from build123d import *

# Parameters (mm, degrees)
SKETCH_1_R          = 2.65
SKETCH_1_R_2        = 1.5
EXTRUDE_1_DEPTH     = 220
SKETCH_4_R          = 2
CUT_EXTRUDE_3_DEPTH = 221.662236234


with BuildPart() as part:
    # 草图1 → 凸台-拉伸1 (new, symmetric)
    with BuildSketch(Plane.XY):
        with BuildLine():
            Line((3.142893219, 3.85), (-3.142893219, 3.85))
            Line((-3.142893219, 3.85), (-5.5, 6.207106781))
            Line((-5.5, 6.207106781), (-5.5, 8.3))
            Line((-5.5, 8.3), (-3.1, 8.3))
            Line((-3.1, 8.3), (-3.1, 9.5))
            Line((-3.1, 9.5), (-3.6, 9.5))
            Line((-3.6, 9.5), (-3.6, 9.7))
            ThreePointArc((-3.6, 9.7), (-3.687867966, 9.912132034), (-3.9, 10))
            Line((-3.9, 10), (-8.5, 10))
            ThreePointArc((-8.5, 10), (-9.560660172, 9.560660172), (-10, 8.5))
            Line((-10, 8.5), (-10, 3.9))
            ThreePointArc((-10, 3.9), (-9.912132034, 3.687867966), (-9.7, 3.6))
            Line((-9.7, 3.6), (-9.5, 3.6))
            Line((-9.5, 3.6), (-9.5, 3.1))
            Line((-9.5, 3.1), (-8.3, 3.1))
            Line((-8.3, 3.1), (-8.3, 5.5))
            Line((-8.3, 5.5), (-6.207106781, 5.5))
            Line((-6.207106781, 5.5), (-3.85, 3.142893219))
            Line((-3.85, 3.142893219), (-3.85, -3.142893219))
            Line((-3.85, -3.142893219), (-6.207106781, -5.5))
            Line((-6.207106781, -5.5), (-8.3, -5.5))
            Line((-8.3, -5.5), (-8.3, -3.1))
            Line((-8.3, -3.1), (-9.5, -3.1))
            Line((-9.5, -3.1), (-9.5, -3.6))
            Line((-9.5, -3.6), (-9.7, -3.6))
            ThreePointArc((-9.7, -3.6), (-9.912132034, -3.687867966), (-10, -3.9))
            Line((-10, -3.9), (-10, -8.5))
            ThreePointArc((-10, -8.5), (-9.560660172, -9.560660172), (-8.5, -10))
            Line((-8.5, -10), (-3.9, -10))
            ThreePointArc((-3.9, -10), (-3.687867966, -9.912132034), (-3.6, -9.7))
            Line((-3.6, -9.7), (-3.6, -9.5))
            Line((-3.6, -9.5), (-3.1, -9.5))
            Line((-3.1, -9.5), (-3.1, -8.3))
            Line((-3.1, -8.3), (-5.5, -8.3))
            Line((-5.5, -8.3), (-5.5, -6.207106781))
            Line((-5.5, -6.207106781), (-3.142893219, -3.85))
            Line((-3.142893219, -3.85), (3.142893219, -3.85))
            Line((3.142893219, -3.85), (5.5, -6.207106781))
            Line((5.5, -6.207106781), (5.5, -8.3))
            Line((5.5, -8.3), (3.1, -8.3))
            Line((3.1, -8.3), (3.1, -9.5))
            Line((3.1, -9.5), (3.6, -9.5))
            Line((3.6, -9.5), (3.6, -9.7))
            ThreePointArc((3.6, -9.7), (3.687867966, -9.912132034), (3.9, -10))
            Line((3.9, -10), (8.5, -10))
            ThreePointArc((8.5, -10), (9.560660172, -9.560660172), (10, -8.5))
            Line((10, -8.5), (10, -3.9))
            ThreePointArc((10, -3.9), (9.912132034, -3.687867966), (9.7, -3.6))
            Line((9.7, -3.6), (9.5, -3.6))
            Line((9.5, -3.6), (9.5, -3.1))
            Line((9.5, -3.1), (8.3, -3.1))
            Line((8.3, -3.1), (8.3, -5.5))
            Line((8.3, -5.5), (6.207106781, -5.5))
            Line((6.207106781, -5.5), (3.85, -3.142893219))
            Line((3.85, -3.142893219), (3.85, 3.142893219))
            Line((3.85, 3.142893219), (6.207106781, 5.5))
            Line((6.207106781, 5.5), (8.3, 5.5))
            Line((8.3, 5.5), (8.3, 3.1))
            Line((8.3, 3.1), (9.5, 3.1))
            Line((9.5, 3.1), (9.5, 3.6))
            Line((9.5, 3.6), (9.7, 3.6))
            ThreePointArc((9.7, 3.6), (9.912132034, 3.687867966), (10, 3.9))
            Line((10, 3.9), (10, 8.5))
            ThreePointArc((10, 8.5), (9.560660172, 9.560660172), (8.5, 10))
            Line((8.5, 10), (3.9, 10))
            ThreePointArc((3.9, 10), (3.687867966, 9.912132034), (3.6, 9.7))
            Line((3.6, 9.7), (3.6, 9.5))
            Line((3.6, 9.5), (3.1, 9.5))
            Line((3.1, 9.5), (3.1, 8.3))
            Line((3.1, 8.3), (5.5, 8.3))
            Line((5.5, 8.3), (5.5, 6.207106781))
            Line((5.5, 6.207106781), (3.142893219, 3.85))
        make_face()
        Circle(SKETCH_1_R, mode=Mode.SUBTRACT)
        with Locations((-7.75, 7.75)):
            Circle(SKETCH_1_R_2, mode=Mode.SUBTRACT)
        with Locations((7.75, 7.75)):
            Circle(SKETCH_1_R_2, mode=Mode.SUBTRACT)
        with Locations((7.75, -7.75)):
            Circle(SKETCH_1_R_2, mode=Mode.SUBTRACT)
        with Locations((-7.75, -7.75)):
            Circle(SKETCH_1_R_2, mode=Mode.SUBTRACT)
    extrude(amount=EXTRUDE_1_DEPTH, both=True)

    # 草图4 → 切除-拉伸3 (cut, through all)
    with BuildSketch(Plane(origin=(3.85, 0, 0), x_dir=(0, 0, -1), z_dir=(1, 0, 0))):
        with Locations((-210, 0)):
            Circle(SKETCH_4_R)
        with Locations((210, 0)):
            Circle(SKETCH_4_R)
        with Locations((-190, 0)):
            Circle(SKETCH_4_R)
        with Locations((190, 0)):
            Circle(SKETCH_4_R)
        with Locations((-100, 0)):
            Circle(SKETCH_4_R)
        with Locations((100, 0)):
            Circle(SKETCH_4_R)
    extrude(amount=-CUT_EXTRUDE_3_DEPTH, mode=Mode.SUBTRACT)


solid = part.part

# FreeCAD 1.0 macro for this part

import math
import FreeCAD as App
import Part
import Sketcher

doc = App.newDocument("Part")
params = doc.addObject("Spreadsheet::Sheet", "Params")
for row, (alias, value) in enumerate([
    ("sketch1_diameter", "3 mm"),
    ("sketch1_diameter2", "5.3 mm"),
    ("sketch1_radius", "0.3 mm"),
    ("sketch1_width", "2.4 mm"),
    ("sketch1_width2", "0.5 mm"),
    ("pad1_length", "440 mm"),
    ("sketch2_diameter", "4 mm"),
], start=1):
    params.set(f"A{row}", alias)
    params.set(f"B{row}", "=" + value)
    params.setAlias(f"B{row}", alias)

body = doc.addObject("PartDesign::Body", "Body")

# Sketch on XY plane
sketch1 = body.newObject("Sketcher::SketchObject", "Sketch")
sketch1.AttachmentSupport = (doc.getObject("XY_Plane"), [""])
sketch1.MapMode = "FlatFace"
sketch1.addGeometry(Part.LineSegment(App.Vector(3.14, 3.85, 0), App.Vector(-3.14, 3.85, 0)), False)
sketch1.addGeometry(Part.LineSegment(App.Vector(-3.14, 3.85, 0), App.Vector(-5.5, 6.21, 0)), False)
sketch1.addGeometry(Part.LineSegment(App.Vector(-5.5, 6.21, 0), App.Vector(-5.5, 8.3, 0)), False)
sketch1.addGeometry(Part.LineSegment(App.Vector(-5.5, 8.3, 0), App.Vector(-3.1, 8.3, 0)), False)
sketch1.addGeometry(Part.LineSegment(App.Vector(-3.1, 8.3, 0), App.Vector(-3.1, 9.5, 0)), False)
sketch1.addGeometry(Part.LineSegment(App.Vector(-3.1, 9.5, 0), App.Vector(-3.6, 9.5, 0)), False)
sketch1.addGeometry(Part.LineSegment(App.Vector(-3.6, 9.5, 0), App.Vector(-3.6, 9.7, 0)), False)
sketch1.addGeometry(Part.ArcOfCircle(Part.Circle(App.Vector(-3.9, 9.7, 0), App.Vector(0, 0, 1), 0.3), math.radians(0), math.radians(90)), False)
sketch1.addGeometry(Part.LineSegment(App.Vector(-3.9, 10, 0), App.Vector(-8.5, 10, 0)), False)
sketch1.addGeometry(Part.ArcOfCircle(Part.Circle(App.Vector(-8.5, 8.5, 0), App.Vector(0, 0, 1), 1.5), math.radians(90), math.radians(180)), False)
sketch1.addGeometry(Part.LineSegment(App.Vector(-10, 8.5, 0), App.Vector(-10, 3.9, 0)), False)
sketch1.addGeometry(Part.ArcOfCircle(Part.Circle(App.Vector(-9.7, 3.9, 0), App.Vector(0, 0, 1), 0.3), math.radians(-180), math.radians(-90)), False)
sketch1.addGeometry(Part.LineSegment(App.Vector(-9.7, 3.6, 0), App.Vector(-9.5, 3.6, 0)), False)
sketch1.addGeometry(Part.LineSegment(App.Vector(-9.5, 3.6, 0), App.Vector(-9.5, 3.1, 0)), False)
sketch1.addGeometry(Part.LineSegment(App.Vector(-9.5, 3.1, 0), App.Vector(-8.3, 3.1, 0)), False)
sketch1.addGeometry(Part.LineSegment(App.Vector(-8.3, 3.1, 0), App.Vector(-8.3, 5.5, 0)), False)
sketch1.addGeometry(Part.LineSegment(App.Vector(-8.3, 5.5, 0), App.Vector(-6.21, 5.5, 0)), False)
sketch1.addGeometry(Part.LineSegment(App.Vector(-6.21, 5.5, 0), App.Vector(-3.85, 3.14, 0)), False)
sketch1.addGeometry(Part.LineSegment(App.Vector(-3.85, 3.14, 0), App.Vector(-3.85, -3.14, 0)), False)
sketch1.addGeometry(Part.LineSegment(App.Vector(-3.85, -3.14, 0), App.Vector(-6.21, -5.5, 0)), False)
sketch1.addGeometry(Part.LineSegment(App.Vector(-6.21, -5.5, 0), App.Vector(-8.3, -5.5, 0)), False)
sketch1.addGeometry(Part.LineSegment(App.Vector(-8.3, -5.5, 0), App.Vector(-8.3, -3.1, 0)), False)
sketch1.addGeometry(Part.LineSegment(App.Vector(-8.3, -3.1, 0), App.Vector(-9.5, -3.1, 0)), False)
sketch1.addGeometry(Part.LineSegment(App.Vector(-9.5, -3.1, 0), App.Vector(-9.5, -3.6, 0)), False)
sketch1.addGeometry(Part.LineSegment(App.Vector(-9.5, -3.6, 0), App.Vector(-9.7, -3.6, 0)), False)
sketch1.addGeometry(Part.ArcOfCircle(Part.Circle(App.Vector(-9.7, -3.9, 0), App.Vector(0, 0, 1), 0.3), math.radians(90), math.radians(180)), False)
sketch1.addGeometry(Part.LineSegment(App.Vector(-10, -3.9, 0), App.Vector(-10, -8.5, 0)), False)
sketch1.addGeometry(Part.ArcOfCircle(Part.Circle(App.Vector(-8.5, -8.5, 0), App.Vector(0, 0, 1), 1.5), math.radians(180), math.radians(270)), False)
sketch1.addGeometry(Part.LineSegment(App.Vector(-8.5, -10, 0), App.Vector(-3.9, -10, 0)), False)
sketch1.addGeometry(Part.ArcOfCircle(Part.Circle(App.Vector(-3.9, -9.7, 0), App.Vector(0, 0, 1), 0.3), math.radians(-90), math.radians(0)), False)
sketch1.addGeometry(Part.LineSegment(App.Vector(-3.6, -9.7, 0), App.Vector(-3.6, -9.5, 0)), False)
sketch1.addGeometry(Part.LineSegment(App.Vector(-3.6, -9.5, 0), App.Vector(-3.1, -9.5, 0)), False)
sketch1.addGeometry(Part.LineSegment(App.Vector(-3.1, -9.5, 0), App.Vector(-3.1, -8.3, 0)), False)
sketch1.addGeometry(Part.LineSegment(App.Vector(-3.1, -8.3, 0), App.Vector(-5.5, -8.3, 0)), False)
sketch1.addGeometry(Part.LineSegment(App.Vector(-5.5, -8.3, 0), App.Vector(-5.5, -6.21, 0)), False)
sketch1.addGeometry(Part.LineSegment(App.Vector(-5.5, -6.21, 0), App.Vector(-3.14, -3.85, 0)), False)
sketch1.addGeometry(Part.LineSegment(App.Vector(-3.14, -3.85, 0), App.Vector(3.14, -3.85, 0)), False)
sketch1.addGeometry(Part.LineSegment(App.Vector(3.14, -3.85, 0), App.Vector(5.5, -6.21, 0)), False)
sketch1.addGeometry(Part.LineSegment(App.Vector(5.5, -6.21, 0), App.Vector(5.5, -8.3, 0)), False)
sketch1.addGeometry(Part.LineSegment(App.Vector(5.5, -8.3, 0), App.Vector(3.1, -8.3, 0)), False)
sketch1.addGeometry(Part.LineSegment(App.Vector(3.1, -8.3, 0), App.Vector(3.1, -9.5, 0)), False)
sketch1.addGeometry(Part.LineSegment(App.Vector(3.1, -9.5, 0), App.Vector(3.6, -9.5, 0)), False)
sketch1.addGeometry(Part.LineSegment(App.Vector(3.6, -9.5, 0), App.Vector(3.6, -9.7, 0)), False)
sketch1.addGeometry(Part.ArcOfCircle(Part.Circle(App.Vector(3.9, -9.7, 0), App.Vector(0, 0, 1), 0.3), math.radians(-180), math.radians(-90)), False)
sketch1.addGeometry(Part.LineSegment(App.Vector(3.9, -10, 0), App.Vector(8.5, -10, 0)), False)
sketch1.addGeometry(Part.ArcOfCircle(Part.Circle(App.Vector(8.5, -8.5, 0), App.Vector(0, 0, 1), 1.5), math.radians(-90), math.radians(0)), False)
sketch1.addGeometry(Part.LineSegment(App.Vector(10, -8.5, 0), App.Vector(10, -3.9, 0)), False)
sketch1.addGeometry(Part.ArcOfCircle(Part.Circle(App.Vector(9.7, -3.9, 0), App.Vector(0, 0, 1), 0.3), math.radians(0), math.radians(90)), False)
sketch1.addGeometry(Part.LineSegment(App.Vector(9.7, -3.6, 0), App.Vector(9.5, -3.6, 0)), False)
sketch1.addGeometry(Part.LineSegment(App.Vector(9.5, -3.6, 0), App.Vector(9.5, -3.1, 0)), False)
sketch1.addGeometry(Part.LineSegment(App.Vector(9.5, -3.1, 0), App.Vector(8.3, -3.1, 0)), False)
sketch1.addGeometry(Part.LineSegment(App.Vector(8.3, -3.1, 0), App.Vector(8.3, -5.5, 0)), False)
sketch1.addGeometry(Part.LineSegment(App.Vector(8.3, -5.5, 0), App.Vector(6.21, -5.5, 0)), False)
sketch1.addGeometry(Part.LineSegment(App.Vector(6.21, -5.5, 0), App.Vector(3.85, -3.14, 0)), False)
sketch1.addGeometry(Part.LineSegment(App.Vector(3.85, -3.14, 0), App.Vector(3.85, 3.14, 0)), False)
sketch1.addGeometry(Part.LineSegment(App.Vector(3.85, 3.14, 0), App.Vector(6.21, 5.5, 0)), False)
sketch1.addGeometry(Part.LineSegment(App.Vector(6.21, 5.5, 0), App.Vector(8.3, 5.5, 0)), False)
sketch1.addGeometry(Part.LineSegment(App.Vector(8.3, 5.5, 0), App.Vector(8.3, 3.1, 0)), False)
sketch1.addGeometry(Part.LineSegment(App.Vector(8.3, 3.1, 0), App.Vector(9.5, 3.1, 0)), False)
sketch1.addGeometry(Part.LineSegment(App.Vector(9.5, 3.1, 0), App.Vector(9.5, 3.6, 0)), False)
sketch1.addGeometry(Part.LineSegment(App.Vector(9.5, 3.6, 0), App.Vector(9.7, 3.6, 0)), False)
sketch1.addGeometry(Part.ArcOfCircle(Part.Circle(App.Vector(9.7, 3.9, 0), App.Vector(0, 0, 1), 0.3), math.radians(-90), math.radians(0)), False)
sketch1.addGeometry(Part.LineSegment(App.Vector(10, 3.9, 0), App.Vector(10, 8.5, 0)), False)
sketch1.addGeometry(Part.ArcOfCircle(Part.Circle(App.Vector(8.5, 8.5, 0), App.Vector(0, 0, 1), 1.5), math.radians(0), math.radians(90)), False)
sketch1.addGeometry(Part.LineSegment(App.Vector(8.5, 10, 0), App.Vector(3.9, 10, 0)), False)
sketch1.addGeometry(Part.ArcOfCircle(Part.Circle(App.Vector(3.9, 9.7, 0), App.Vector(0, 0, 1), 0.3), math.radians(90), math.radians(180)), False)
sketch1.addGeometry(Part.LineSegment(App.Vector(3.6, 9.7, 0), App.Vector(3.6, 9.5, 0)), False)
sketch1.addGeometry(Part.LineSegment(App.Vector(3.6, 9.5, 0), App.Vector(3.1, 9.5, 0)), False)
sketch1.addGeometry(Part.LineSegment(App.Vector(3.1, 9.5, 0), App.Vector(3.1, 8.3, 0)), False)
sketch1.addGeometry(Part.LineSegment(App.Vector(3.1, 8.3, 0), App.Vector(5.5, 8.3, 0)), False)
sketch1.addGeometry(Part.LineSegment(App.Vector(5.5, 8.3, 0), App.Vector(5.5, 6.21, 0)), False)
sketch1.addGeometry(Part.LineSegment(App.Vector(5.5, 6.21, 0), App.Vector(3.14, 3.85, 0)), False)
sketch1.addGeometry(Part.Circle(App.Vector(-7.75, -7.75, 0), App.Vector(0, 0, 1), 1.5), False)
sketch1.addGeometry(Part.Circle(App.Vector(7.75, -7.75, 0), App.Vector(0, 0, 1), 1.5), False)
sketch1.addGeometry(Part.Circle(App.Vector(-7.75, 7.75, 0), App.Vector(0, 0, 1), 1.5), False)
sketch1.addGeometry(Part.Circle(App.Vector(0, 0, 0), App.Vector(0, 0, 1), 2.65), False)
sketch1.addGeometry(Part.Circle(App.Vector(7.75, 7.75, 0), App.Vector(0, 0, 1), 1.5), False)
sketch1.addConstraint(Sketcher.Constraint("Coincident", 0, 2, 1, 1))
sketch1.addConstraint(Sketcher.Constraint("Coincident", 1, 2, 2, 1))
sketch1.addConstraint(Sketcher.Constraint("Coincident", 2, 2, 3, 1))
sketch1.addConstraint(Sketcher.Constraint("Coincident", 3, 2, 4, 1))
sketch1.addConstraint(Sketcher.Constraint("Coincident", 4, 2, 5, 1))
sketch1.addConstraint(Sketcher.Constraint("Coincident", 5, 2, 6, 1))
sketch1.addConstraint(Sketcher.Constraint("Tangent", 6, 2, 7, 1))
sketch1.addConstraint(Sketcher.Constraint("Tangent", 7, 2, 8, 1))
sketch1.addConstraint(Sketcher.Constraint("Tangent", 8, 2, 9, 1))
sketch1.addConstraint(Sketcher.Constraint("Tangent", 9, 2, 10, 1))
sketch1.addConstraint(Sketcher.Constraint("Tangent", 10, 2, 11, 1))
sketch1.addConstraint(Sketcher.Constraint("Tangent", 11, 2, 12, 1))
sketch1.addConstraint(Sketcher.Constraint("Coincident", 12, 2, 13, 1))
sketch1.addConstraint(Sketcher.Constraint("Coincident", 13, 2, 14, 1))
sketch1.addConstraint(Sketcher.Constraint("Coincident", 14, 2, 15, 1))
sketch1.addConstraint(Sketcher.Constraint("Coincident", 15, 2, 16, 1))
sketch1.addConstraint(Sketcher.Constraint("Coincident", 16, 2, 17, 1))
sketch1.addConstraint(Sketcher.Constraint("Coincident", 17, 2, 18, 1))
sketch1.addConstraint(Sketcher.Constraint("Coincident", 18, 2, 19, 1))
sketch1.addConstraint(Sketcher.Constraint("Coincident", 19, 2, 20, 1))
sketch1.addConstraint(Sketcher.Constraint("Coincident", 20, 2, 21, 1))
sketch1.addConstraint(Sketcher.Constraint("Coincident", 21, 2, 22, 1))
sketch1.addConstraint(Sketcher.Constraint("Coincident", 22, 2, 23, 1))
sketch1.addConstraint(Sketcher.Constraint("Coincident", 23, 2, 24, 1))
sketch1.addConstraint(Sketcher.Constraint("Tangent", 24, 2, 25, 1))
sketch1.addConstraint(Sketcher.Constraint("Tangent", 25, 2, 26, 1))
sketch1.addConstraint(Sketcher.Constraint("Tangent", 26, 2, 27, 1))
sketch1.addConstraint(Sketcher.Constraint("Tangent", 27, 2, 28, 1))
sketch1.addConstraint(Sketcher.Constraint("Tangent", 28, 2, 29, 1))
sketch1.addConstraint(Sketcher.Constraint("Tangent", 29, 2, 30, 1))
sketch1.addConstraint(Sketcher.Constraint("Coincident", 30, 2, 31, 1))
sketch1.addConstraint(Sketcher.Constraint("Coincident", 31, 2, 32, 1))
sketch1.addConstraint(Sketcher.Constraint("Coincident", 32, 2, 33, 1))
sketch1.addConstraint(Sketcher.Constraint("Coincident", 33, 2, 34, 1))
sketch1.addConstraint(Sketcher.Constraint("Coincident", 34, 2, 35, 1))
sketch1.addConstraint(Sketcher.Constraint("Coincident", 35, 2, 36, 1))
sketch1.addConstraint(Sketcher.Constraint("Coincident", 36, 2, 37, 1))
sketch1.addConstraint(Sketcher.Constraint("Coincident", 37, 2, 38, 1))
sketch1.addConstraint(Sketcher.Constraint("Coincident", 38, 2, 39, 1))
sketch1.addConstraint(Sketcher.Constraint("Coincident", 39, 2, 40, 1))
sketch1.addConstraint(Sketcher.Constraint("Coincident", 40, 2, 41, 1))
sketch1.addConstraint(Sketcher.Constraint("Coincident", 41, 2, 42, 1))
sketch1.addConstraint(Sketcher.Constraint("Tangent", 42, 2, 43, 1))
sketch1.addConstraint(Sketcher.Constraint("Tangent", 43, 2, 44, 1))
sketch1.addConstraint(Sketcher.Constraint("Tangent", 44, 2, 45, 1))
sketch1.addConstraint(Sketcher.Constraint("Tangent", 45, 2, 46, 1))
sketch1.addConstraint(Sketcher.Constraint("Tangent", 46, 2, 47, 1))
sketch1.addConstraint(Sketcher.Constraint("Tangent", 47, 2, 48, 1))
sketch1.addConstraint(Sketcher.Constraint("Coincident", 48, 2, 49, 1))
sketch1.addConstraint(Sketcher.Constraint("Coincident", 49, 2, 50, 1))
sketch1.addConstraint(Sketcher.Constraint("Coincident", 50, 2, 51, 1))
sketch1.addConstraint(Sketcher.Constraint("Coincident", 51, 2, 52, 1))
sketch1.addConstraint(Sketcher.Constraint("Coincident", 52, 2, 53, 1))
sketch1.addConstraint(Sketcher.Constraint("Coincident", 53, 2, 54, 1))
sketch1.addConstraint(Sketcher.Constraint("Coincident", 54, 2, 55, 1))
sketch1.addConstraint(Sketcher.Constraint("Coincident", 55, 2, 56, 1))
sketch1.addConstraint(Sketcher.Constraint("Coincident", 56, 2, 57, 1))
sketch1.addConstraint(Sketcher.Constraint("Coincident", 57, 2, 58, 1))
sketch1.addConstraint(Sketcher.Constraint("Coincident", 58, 2, 59, 1))
sketch1.addConstraint(Sketcher.Constraint("Coincident", 59, 2, 60, 1))
sketch1.addConstraint(Sketcher.Constraint("Tangent", 60, 2, 61, 1))
sketch1.addConstraint(Sketcher.Constraint("Tangent", 61, 2, 62, 1))
sketch1.addConstraint(Sketcher.Constraint("Tangent", 62, 2, 63, 1))
sketch1.addConstraint(Sketcher.Constraint("Tangent", 63, 2, 64, 1))
sketch1.addConstraint(Sketcher.Constraint("Tangent", 64, 2, 65, 1))
sketch1.addConstraint(Sketcher.Constraint("Tangent", 65, 2, 66, 1))
sketch1.addConstraint(Sketcher.Constraint("Coincident", 66, 2, 67, 1))
sketch1.addConstraint(Sketcher.Constraint("Coincident", 67, 2, 68, 1))
sketch1.addConstraint(Sketcher.Constraint("Coincident", 68, 2, 69, 1))
sketch1.addConstraint(Sketcher.Constraint("Coincident", 69, 2, 70, 1))
sketch1.addConstraint(Sketcher.Constraint("Coincident", 70, 2, 71, 1))
sketch1.addConstraint(Sketcher.Constraint("Coincident", 71, 2, 0, 1))
sketch1.addConstraint(Sketcher.Constraint("Horizontal", 0))
sketch1.addConstraint(Sketcher.Constraint("Vertical", 2))
sketch1.addConstraint(Sketcher.Constraint("Horizontal", 3))
sketch1.addConstraint(Sketcher.Constraint("Vertical", 4))
sketch1.addConstraint(Sketcher.Constraint("Horizontal", 5))
sketch1.addConstraint(Sketcher.Constraint("Vertical", 6))
sketch1.addConstraint(Sketcher.Constraint("Horizontal", 8))
sketch1.addConstraint(Sketcher.Constraint("Vertical", 10))
sketch1.addConstraint(Sketcher.Constraint("Horizontal", 12))
sketch1.addConstraint(Sketcher.Constraint("Vertical", 13))
sketch1.addConstraint(Sketcher.Constraint("Horizontal", 14))
sketch1.addConstraint(Sketcher.Constraint("Vertical", 15))
sketch1.addConstraint(Sketcher.Constraint("Horizontal", 16))
sketch1.addConstraint(Sketcher.Constraint("Vertical", 18))
sketch1.addConstraint(Sketcher.Constraint("Horizontal", 20))
sketch1.addConstraint(Sketcher.Constraint("Vertical", 21))
sketch1.addConstraint(Sketcher.Constraint("Horizontal", 22))
sketch1.addConstraint(Sketcher.Constraint("Vertical", 23))
sketch1.addConstraint(Sketcher.Constraint("Horizontal", 24))
sketch1.addConstraint(Sketcher.Constraint("Vertical", 26))
sketch1.addConstraint(Sketcher.Constraint("Horizontal", 28))
sketch1.addConstraint(Sketcher.Constraint("Vertical", 30))
sketch1.addConstraint(Sketcher.Constraint("Horizontal", 31))
sketch1.addConstraint(Sketcher.Constraint("Vertical", 32))
sketch1.addConstraint(Sketcher.Constraint("Horizontal", 33))
sketch1.addConstraint(Sketcher.Constraint("Vertical", 34))
sketch1.addConstraint(Sketcher.Constraint("Horizontal", 36))
sketch1.addConstraint(Sketcher.Constraint("Vertical", 38))
sketch1.addConstraint(Sketcher.Constraint("Horizontal", 39))
sketch1.addConstraint(Sketcher.Constraint("Vertical", 40))
sketch1.addConstraint(Sketcher.Constraint("Horizontal", 41))
sketch1.addConstraint(Sketcher.Constraint("Vertical", 42))
sketch1.addConstraint(Sketcher.Constraint("Horizontal", 44))
sketch1.addConstraint(Sketcher.Constraint("Vertical", 46))
sketch1.addConstraint(Sketcher.Constraint("Horizontal", 48))
sketch1.addConstraint(Sketcher.Constraint("Vertical", 49))
sketch1.addConstraint(Sketcher.Constraint("Horizontal", 50))
sketch1.addConstraint(Sketcher.Constraint("Vertical", 51))
sketch1.addConstraint(Sketcher.Constraint("Horizontal", 52))
sketch1.addConstraint(Sketcher.Constraint("Vertical", 54))
sketch1.addConstraint(Sketcher.Constraint("Horizontal", 56))
sketch1.addConstraint(Sketcher.Constraint("Vertical", 57))
sketch1.addConstraint(Sketcher.Constraint("Horizontal", 58))
sketch1.addConstraint(Sketcher.Constraint("Vertical", 59))
sketch1.addConstraint(Sketcher.Constraint("Horizontal", 60))
sketch1.addConstraint(Sketcher.Constraint("Vertical", 62))
sketch1.addConstraint(Sketcher.Constraint("Horizontal", 64))
sketch1.addConstraint(Sketcher.Constraint("Vertical", 66))
sketch1.addConstraint(Sketcher.Constraint("Horizontal", 67))
sketch1.addConstraint(Sketcher.Constraint("Vertical", 68))
sketch1.addConstraint(Sketcher.Constraint("Horizontal", 69))
sketch1.addConstraint(Sketcher.Constraint("Vertical", 70))
sketch1.addConstraint(Sketcher.Constraint("Coincident", 75, 3, -1, 1))
sketch1.addConstraint(Sketcher.Constraint("Equal", 7, 11))
sketch1.addConstraint(Sketcher.Constraint("Equal", 11, 25))
sketch1.addConstraint(Sketcher.Constraint("Equal", 9, 27))
sketch1.addConstraint(Sketcher.Constraint("Equal", 25, 29))
sketch1.addConstraint(Sketcher.Constraint("Equal", 29, 43))
sketch1.addConstraint(Sketcher.Constraint("Equal", 27, 45))
sketch1.addConstraint(Sketcher.Constraint("Equal", 43, 47))
sketch1.addConstraint(Sketcher.Constraint("Equal", 47, 61))
sketch1.addConstraint(Sketcher.Constraint("Equal", 45, 63))
sketch1.addConstraint(Sketcher.Constraint("Equal", 61, 65))
sketch1.addConstraint(Sketcher.Constraint("Equal", 63, 72))
sketch1.addConstraint(Sketcher.Constraint("Equal", 72, 73))
sketch1.addConstraint(Sketcher.Constraint("Equal", 73, 74))
sketch1.addConstraint(Sketcher.Constraint("Equal", 74, 76))
sketch1.addConstraint(Sketcher.Constraint("Symmetric", 7, 3, 43, 3, -1, 1))
sketch1.addConstraint(Sketcher.Constraint("Symmetric", 11, 3, 47, 3, -1, 1))
sketch1.addConstraint(Sketcher.Constraint("Symmetric", 25, 3, 61, 3, -1, 1))
sketch1.addConstraint(Sketcher.Constraint("Symmetric", 29, 3, 65, 3, -1, 1))
sketch1.addConstraint(Sketcher.Constraint("Symmetric", 73, 3, 74, 3, -1, 1))
sketch1.addConstraint(Sketcher.Constraint("Symmetric", 72, 3, 76, 3, -1, 1))
sketch1.addConstraint(Sketcher.Constraint("Symmetric", 0, 2, 36, 2, -1, 1))
sketch1.addConstraint(Sketcher.Constraint("Symmetric", 1, 2, 37, 2, -1, 1))
sketch1.addConstraint(Sketcher.Constraint("Symmetric", 3, 2, 39, 2, -1, 1))
sketch1.addConstraint(Sketcher.Constraint("Symmetric", 13, 2, 49, 2, -1, 1))
sketch1.addConstraint(Sketcher.Constraint("Symmetric", 15, 2, 51, 2, -1, 1))
sketch1.addConstraint(Sketcher.Constraint("Symmetric", 17, 2, 53, 2, -1, 1))
sketch1.addConstraint(Sketcher.Constraint("Symmetric", 19, 2, 55, 2, -1, 1))
sketch1.addConstraint(Sketcher.Constraint("Symmetric", 21, 2, 57, 2, -1, 1))
sketch1.addConstraint(Sketcher.Constraint("Symmetric", 31, 2, 67, 2, -1, 1))
sketch1.addConstraint(Sketcher.Constraint("Symmetric", 33, 2, 69, 2, -1, 1))
sketch1.addConstraint(Sketcher.Constraint("Symmetric", 29, 3, 43, 3, -2))
sketch1.addConstraint(Sketcher.Constraint("Symmetric", 25, 3, 47, 3, -2))
sketch1.addConstraint(Sketcher.Constraint("Symmetric", 72, 3, 73, 3, -2))
sketch1.addConstraint(Sketcher.Constraint("Symmetric", 34, 2, 37, 2, -2))
sketch1.addConstraint(Sketcher.Constraint("Symmetric", 32, 2, 39, 2, -2))
sketch1.addConstraint(Sketcher.Constraint("Symmetric", 22, 2, 49, 2, -2))
sketch1.addConstraint(Sketcher.Constraint("Symmetric", 20, 2, 51, 2, -2))
sketch1.addConstraint(Sketcher.Constraint("Parallel", 1, 17))
sketch1.addConstraint(Sketcher.Constraint("Perpendicular", 17, 19))
sketch1.addConstraint(Sketcher.Constraint("Parallel", 19, 35))
sketch1.addConstraint(Sketcher.Constraint("Parallel", 37, 53))
sketch1.addConstraint(Sketcher.Constraint("Perpendicular", 53, 55))
sketch1.addConstraint(Sketcher.Constraint("Parallel", 55, 71))
sketch1.addConstraint(Sketcher.Constraint("Horizontal", 31, 2, 40, 2))
sketch1.addConstraint(Sketcher.Constraint("Horizontal", 18, 2, 53, 2))
sketch1.addConstraint(Sketcher.Constraint("Horizontal", 5, 2, 66, 2))
sketch1.addConstraint(Sketcher.Constraint("Horizontal", 1, 2, 70, 2))
sketch1.addConstraint(Sketcher.Constraint("Vertical", 16, 2, 19, 2))
sketch1.addConstraint(Sketcher.Constraint("Vertical", 49, 2, 58, 2))
sketch1.addConstraint(Sketcher.Constraint("Equal", 56, 2))
sketch1.addConstraint(Sketcher.Constraint("Equal", 58, 4))
sketch1.addConstraint(Sketcher.Constraint("Equal", 60, 6))
sketch1.addConstraint(Sketcher.Constraint("Equal", 64, 10))
sketch1.addConstraint(Sketcher.Constraint("Equal", 67, 13))
sketch1.addConstraint(Sketcher.Constraint("Equal", 69, 15))
sketch1.addConstraint(Sketcher.Constraint("Equal", 36, 18))
sketch1.addConstraint(Sketcher.Constraint("Equal", 1, 17))
sketch1.addConstraint(Sketcher.Constraint("Diameter", 72, 3.0))
sketch1.addConstraint(Sketcher.Constraint("Diameter", 75, 5.3))
sketch1.addConstraint(Sketcher.Constraint("Radius", 7, 0.3))
sketch1.addConstraint(Sketcher.Constraint("DistanceX", 3, 1, 3, 2, 2.4))
sketch1.addConstraint(Sketcher.Constraint("DistanceX", 5, 2, 5, 1, 0.5))
sketch1.addConstraint(Sketcher.Constraint("DistanceX", 8, 2, 8, 1, 4.6))
sketch1.addConstraint(Sketcher.Constraint("DistanceX", 12, 1, 12, 2, 0.2))
sketch1.addConstraint(Sketcher.Constraint("DistanceX", 14, 1, 14, 2, 1.2))
sketch1.addConstraint(Sketcher.Constraint("DistanceY", -1, 1, 7, 2, 10.0))
sketch1.addConstraint(Sketcher.Constraint("DistanceX", 72, 3, -1, 1, 7.75))
sketch1.addConstraint(Sketcher.Constraint("DistanceY", 72, 3, -1, 1, 7.75))
sketch1.addConstraint(Sketcher.Constraint("DistanceY", -1, 1, 0, 2, 3.85))
sketch1.addConstraint(Sketcher.Constraint("DistanceX", 0, 2, 0, 1, 6.285786))
sketch1.setExpression("Constraints[182]", "Params.sketch1_diameter")
sketch1.setExpression("Constraints[183]", "Params.sketch1_diameter2")
sketch1.setExpression("Constraints[184]", "Params.sketch1_radius")
sketch1.setExpression("Constraints[185]", "Params.sketch1_width")
sketch1.setExpression("Constraints[186]", "Params.sketch1_width2")
pad1 = body.newObject("PartDesign::Pad", "Pad")
pad1.Profile = sketch1
pad1.setExpression("Length", "Params.pad1_length")
pad1.Midplane = True

# Sketch on YZ plane
sketch2 = body.newObject("Sketcher::SketchObject", "Sketch001")
sketch2.AttachmentSupport = (doc.getObject("YZ_Plane"), [""])
sketch2.MapMode = "FlatFace"
sketch2.AttachmentOffset = App.Placement(App.Vector(0, 0, 3.85), App.Rotation())
sketch2.addGeometry(Part.Circle(App.Vector(0, 210, 0), App.Vector(0, 0, 1), 2), False)
sketch2.addGeometry(Part.Circle(App.Vector(0, -210, 0), App.Vector(0, 0, 1), 2), False)
sketch2.addGeometry(Part.Circle(App.Vector(0, 190, 0), App.Vector(0, 0, 1), 2), False)
sketch2.addGeometry(Part.Circle(App.Vector(0, -190, 0), App.Vector(0, 0, 1), 2), False)
sketch2.addGeometry(Part.Circle(App.Vector(0, 100, 0), App.Vector(0, 0, 1), 2), False)
sketch2.addGeometry(Part.Circle(App.Vector(0, -100, 0), App.Vector(0, 0, 1), 2), False)
sketch2.addConstraint(Sketcher.Constraint("Equal", 0, 1))
sketch2.addConstraint(Sketcher.Constraint("Equal", 1, 2))
sketch2.addConstraint(Sketcher.Constraint("Equal", 2, 3))
sketch2.addConstraint(Sketcher.Constraint("Equal", 3, 4))
sketch2.addConstraint(Sketcher.Constraint("Equal", 4, 5))
sketch2.addConstraint(Sketcher.Constraint("Symmetric", 0, 3, 1, 3, -1, 1))
sketch2.addConstraint(Sketcher.Constraint("Symmetric", 2, 3, 3, 3, -1, 1))
sketch2.addConstraint(Sketcher.Constraint("Symmetric", 4, 3, 5, 3, -1, 1))
sketch2.addConstraint(Sketcher.Constraint("PointOnObject", 0, 3, -2))
sketch2.addConstraint(Sketcher.Constraint("PointOnObject", 2, 3, -2))
sketch2.addConstraint(Sketcher.Constraint("PointOnObject", 4, 3, -2))
sketch2.addConstraint(Sketcher.Constraint("Diameter", 0, 4.0))
sketch2.addConstraint(Sketcher.Constraint("DistanceY", -1, 1, 0, 3, 210.0))
sketch2.addConstraint(Sketcher.Constraint("DistanceY", -1, 1, 2, 3, 190.0))
sketch2.addConstraint(Sketcher.Constraint("DistanceY", -1, 1, 4, 3, 100.0))
sketch2.setExpression("Constraints[11]", "Params.sketch2_diameter")
pocket1 = body.newObject("PartDesign::Pocket", "Pocket")
pocket1.Profile = sketch2
pocket1.Type = "ThroughAll"

doc.recompute()
